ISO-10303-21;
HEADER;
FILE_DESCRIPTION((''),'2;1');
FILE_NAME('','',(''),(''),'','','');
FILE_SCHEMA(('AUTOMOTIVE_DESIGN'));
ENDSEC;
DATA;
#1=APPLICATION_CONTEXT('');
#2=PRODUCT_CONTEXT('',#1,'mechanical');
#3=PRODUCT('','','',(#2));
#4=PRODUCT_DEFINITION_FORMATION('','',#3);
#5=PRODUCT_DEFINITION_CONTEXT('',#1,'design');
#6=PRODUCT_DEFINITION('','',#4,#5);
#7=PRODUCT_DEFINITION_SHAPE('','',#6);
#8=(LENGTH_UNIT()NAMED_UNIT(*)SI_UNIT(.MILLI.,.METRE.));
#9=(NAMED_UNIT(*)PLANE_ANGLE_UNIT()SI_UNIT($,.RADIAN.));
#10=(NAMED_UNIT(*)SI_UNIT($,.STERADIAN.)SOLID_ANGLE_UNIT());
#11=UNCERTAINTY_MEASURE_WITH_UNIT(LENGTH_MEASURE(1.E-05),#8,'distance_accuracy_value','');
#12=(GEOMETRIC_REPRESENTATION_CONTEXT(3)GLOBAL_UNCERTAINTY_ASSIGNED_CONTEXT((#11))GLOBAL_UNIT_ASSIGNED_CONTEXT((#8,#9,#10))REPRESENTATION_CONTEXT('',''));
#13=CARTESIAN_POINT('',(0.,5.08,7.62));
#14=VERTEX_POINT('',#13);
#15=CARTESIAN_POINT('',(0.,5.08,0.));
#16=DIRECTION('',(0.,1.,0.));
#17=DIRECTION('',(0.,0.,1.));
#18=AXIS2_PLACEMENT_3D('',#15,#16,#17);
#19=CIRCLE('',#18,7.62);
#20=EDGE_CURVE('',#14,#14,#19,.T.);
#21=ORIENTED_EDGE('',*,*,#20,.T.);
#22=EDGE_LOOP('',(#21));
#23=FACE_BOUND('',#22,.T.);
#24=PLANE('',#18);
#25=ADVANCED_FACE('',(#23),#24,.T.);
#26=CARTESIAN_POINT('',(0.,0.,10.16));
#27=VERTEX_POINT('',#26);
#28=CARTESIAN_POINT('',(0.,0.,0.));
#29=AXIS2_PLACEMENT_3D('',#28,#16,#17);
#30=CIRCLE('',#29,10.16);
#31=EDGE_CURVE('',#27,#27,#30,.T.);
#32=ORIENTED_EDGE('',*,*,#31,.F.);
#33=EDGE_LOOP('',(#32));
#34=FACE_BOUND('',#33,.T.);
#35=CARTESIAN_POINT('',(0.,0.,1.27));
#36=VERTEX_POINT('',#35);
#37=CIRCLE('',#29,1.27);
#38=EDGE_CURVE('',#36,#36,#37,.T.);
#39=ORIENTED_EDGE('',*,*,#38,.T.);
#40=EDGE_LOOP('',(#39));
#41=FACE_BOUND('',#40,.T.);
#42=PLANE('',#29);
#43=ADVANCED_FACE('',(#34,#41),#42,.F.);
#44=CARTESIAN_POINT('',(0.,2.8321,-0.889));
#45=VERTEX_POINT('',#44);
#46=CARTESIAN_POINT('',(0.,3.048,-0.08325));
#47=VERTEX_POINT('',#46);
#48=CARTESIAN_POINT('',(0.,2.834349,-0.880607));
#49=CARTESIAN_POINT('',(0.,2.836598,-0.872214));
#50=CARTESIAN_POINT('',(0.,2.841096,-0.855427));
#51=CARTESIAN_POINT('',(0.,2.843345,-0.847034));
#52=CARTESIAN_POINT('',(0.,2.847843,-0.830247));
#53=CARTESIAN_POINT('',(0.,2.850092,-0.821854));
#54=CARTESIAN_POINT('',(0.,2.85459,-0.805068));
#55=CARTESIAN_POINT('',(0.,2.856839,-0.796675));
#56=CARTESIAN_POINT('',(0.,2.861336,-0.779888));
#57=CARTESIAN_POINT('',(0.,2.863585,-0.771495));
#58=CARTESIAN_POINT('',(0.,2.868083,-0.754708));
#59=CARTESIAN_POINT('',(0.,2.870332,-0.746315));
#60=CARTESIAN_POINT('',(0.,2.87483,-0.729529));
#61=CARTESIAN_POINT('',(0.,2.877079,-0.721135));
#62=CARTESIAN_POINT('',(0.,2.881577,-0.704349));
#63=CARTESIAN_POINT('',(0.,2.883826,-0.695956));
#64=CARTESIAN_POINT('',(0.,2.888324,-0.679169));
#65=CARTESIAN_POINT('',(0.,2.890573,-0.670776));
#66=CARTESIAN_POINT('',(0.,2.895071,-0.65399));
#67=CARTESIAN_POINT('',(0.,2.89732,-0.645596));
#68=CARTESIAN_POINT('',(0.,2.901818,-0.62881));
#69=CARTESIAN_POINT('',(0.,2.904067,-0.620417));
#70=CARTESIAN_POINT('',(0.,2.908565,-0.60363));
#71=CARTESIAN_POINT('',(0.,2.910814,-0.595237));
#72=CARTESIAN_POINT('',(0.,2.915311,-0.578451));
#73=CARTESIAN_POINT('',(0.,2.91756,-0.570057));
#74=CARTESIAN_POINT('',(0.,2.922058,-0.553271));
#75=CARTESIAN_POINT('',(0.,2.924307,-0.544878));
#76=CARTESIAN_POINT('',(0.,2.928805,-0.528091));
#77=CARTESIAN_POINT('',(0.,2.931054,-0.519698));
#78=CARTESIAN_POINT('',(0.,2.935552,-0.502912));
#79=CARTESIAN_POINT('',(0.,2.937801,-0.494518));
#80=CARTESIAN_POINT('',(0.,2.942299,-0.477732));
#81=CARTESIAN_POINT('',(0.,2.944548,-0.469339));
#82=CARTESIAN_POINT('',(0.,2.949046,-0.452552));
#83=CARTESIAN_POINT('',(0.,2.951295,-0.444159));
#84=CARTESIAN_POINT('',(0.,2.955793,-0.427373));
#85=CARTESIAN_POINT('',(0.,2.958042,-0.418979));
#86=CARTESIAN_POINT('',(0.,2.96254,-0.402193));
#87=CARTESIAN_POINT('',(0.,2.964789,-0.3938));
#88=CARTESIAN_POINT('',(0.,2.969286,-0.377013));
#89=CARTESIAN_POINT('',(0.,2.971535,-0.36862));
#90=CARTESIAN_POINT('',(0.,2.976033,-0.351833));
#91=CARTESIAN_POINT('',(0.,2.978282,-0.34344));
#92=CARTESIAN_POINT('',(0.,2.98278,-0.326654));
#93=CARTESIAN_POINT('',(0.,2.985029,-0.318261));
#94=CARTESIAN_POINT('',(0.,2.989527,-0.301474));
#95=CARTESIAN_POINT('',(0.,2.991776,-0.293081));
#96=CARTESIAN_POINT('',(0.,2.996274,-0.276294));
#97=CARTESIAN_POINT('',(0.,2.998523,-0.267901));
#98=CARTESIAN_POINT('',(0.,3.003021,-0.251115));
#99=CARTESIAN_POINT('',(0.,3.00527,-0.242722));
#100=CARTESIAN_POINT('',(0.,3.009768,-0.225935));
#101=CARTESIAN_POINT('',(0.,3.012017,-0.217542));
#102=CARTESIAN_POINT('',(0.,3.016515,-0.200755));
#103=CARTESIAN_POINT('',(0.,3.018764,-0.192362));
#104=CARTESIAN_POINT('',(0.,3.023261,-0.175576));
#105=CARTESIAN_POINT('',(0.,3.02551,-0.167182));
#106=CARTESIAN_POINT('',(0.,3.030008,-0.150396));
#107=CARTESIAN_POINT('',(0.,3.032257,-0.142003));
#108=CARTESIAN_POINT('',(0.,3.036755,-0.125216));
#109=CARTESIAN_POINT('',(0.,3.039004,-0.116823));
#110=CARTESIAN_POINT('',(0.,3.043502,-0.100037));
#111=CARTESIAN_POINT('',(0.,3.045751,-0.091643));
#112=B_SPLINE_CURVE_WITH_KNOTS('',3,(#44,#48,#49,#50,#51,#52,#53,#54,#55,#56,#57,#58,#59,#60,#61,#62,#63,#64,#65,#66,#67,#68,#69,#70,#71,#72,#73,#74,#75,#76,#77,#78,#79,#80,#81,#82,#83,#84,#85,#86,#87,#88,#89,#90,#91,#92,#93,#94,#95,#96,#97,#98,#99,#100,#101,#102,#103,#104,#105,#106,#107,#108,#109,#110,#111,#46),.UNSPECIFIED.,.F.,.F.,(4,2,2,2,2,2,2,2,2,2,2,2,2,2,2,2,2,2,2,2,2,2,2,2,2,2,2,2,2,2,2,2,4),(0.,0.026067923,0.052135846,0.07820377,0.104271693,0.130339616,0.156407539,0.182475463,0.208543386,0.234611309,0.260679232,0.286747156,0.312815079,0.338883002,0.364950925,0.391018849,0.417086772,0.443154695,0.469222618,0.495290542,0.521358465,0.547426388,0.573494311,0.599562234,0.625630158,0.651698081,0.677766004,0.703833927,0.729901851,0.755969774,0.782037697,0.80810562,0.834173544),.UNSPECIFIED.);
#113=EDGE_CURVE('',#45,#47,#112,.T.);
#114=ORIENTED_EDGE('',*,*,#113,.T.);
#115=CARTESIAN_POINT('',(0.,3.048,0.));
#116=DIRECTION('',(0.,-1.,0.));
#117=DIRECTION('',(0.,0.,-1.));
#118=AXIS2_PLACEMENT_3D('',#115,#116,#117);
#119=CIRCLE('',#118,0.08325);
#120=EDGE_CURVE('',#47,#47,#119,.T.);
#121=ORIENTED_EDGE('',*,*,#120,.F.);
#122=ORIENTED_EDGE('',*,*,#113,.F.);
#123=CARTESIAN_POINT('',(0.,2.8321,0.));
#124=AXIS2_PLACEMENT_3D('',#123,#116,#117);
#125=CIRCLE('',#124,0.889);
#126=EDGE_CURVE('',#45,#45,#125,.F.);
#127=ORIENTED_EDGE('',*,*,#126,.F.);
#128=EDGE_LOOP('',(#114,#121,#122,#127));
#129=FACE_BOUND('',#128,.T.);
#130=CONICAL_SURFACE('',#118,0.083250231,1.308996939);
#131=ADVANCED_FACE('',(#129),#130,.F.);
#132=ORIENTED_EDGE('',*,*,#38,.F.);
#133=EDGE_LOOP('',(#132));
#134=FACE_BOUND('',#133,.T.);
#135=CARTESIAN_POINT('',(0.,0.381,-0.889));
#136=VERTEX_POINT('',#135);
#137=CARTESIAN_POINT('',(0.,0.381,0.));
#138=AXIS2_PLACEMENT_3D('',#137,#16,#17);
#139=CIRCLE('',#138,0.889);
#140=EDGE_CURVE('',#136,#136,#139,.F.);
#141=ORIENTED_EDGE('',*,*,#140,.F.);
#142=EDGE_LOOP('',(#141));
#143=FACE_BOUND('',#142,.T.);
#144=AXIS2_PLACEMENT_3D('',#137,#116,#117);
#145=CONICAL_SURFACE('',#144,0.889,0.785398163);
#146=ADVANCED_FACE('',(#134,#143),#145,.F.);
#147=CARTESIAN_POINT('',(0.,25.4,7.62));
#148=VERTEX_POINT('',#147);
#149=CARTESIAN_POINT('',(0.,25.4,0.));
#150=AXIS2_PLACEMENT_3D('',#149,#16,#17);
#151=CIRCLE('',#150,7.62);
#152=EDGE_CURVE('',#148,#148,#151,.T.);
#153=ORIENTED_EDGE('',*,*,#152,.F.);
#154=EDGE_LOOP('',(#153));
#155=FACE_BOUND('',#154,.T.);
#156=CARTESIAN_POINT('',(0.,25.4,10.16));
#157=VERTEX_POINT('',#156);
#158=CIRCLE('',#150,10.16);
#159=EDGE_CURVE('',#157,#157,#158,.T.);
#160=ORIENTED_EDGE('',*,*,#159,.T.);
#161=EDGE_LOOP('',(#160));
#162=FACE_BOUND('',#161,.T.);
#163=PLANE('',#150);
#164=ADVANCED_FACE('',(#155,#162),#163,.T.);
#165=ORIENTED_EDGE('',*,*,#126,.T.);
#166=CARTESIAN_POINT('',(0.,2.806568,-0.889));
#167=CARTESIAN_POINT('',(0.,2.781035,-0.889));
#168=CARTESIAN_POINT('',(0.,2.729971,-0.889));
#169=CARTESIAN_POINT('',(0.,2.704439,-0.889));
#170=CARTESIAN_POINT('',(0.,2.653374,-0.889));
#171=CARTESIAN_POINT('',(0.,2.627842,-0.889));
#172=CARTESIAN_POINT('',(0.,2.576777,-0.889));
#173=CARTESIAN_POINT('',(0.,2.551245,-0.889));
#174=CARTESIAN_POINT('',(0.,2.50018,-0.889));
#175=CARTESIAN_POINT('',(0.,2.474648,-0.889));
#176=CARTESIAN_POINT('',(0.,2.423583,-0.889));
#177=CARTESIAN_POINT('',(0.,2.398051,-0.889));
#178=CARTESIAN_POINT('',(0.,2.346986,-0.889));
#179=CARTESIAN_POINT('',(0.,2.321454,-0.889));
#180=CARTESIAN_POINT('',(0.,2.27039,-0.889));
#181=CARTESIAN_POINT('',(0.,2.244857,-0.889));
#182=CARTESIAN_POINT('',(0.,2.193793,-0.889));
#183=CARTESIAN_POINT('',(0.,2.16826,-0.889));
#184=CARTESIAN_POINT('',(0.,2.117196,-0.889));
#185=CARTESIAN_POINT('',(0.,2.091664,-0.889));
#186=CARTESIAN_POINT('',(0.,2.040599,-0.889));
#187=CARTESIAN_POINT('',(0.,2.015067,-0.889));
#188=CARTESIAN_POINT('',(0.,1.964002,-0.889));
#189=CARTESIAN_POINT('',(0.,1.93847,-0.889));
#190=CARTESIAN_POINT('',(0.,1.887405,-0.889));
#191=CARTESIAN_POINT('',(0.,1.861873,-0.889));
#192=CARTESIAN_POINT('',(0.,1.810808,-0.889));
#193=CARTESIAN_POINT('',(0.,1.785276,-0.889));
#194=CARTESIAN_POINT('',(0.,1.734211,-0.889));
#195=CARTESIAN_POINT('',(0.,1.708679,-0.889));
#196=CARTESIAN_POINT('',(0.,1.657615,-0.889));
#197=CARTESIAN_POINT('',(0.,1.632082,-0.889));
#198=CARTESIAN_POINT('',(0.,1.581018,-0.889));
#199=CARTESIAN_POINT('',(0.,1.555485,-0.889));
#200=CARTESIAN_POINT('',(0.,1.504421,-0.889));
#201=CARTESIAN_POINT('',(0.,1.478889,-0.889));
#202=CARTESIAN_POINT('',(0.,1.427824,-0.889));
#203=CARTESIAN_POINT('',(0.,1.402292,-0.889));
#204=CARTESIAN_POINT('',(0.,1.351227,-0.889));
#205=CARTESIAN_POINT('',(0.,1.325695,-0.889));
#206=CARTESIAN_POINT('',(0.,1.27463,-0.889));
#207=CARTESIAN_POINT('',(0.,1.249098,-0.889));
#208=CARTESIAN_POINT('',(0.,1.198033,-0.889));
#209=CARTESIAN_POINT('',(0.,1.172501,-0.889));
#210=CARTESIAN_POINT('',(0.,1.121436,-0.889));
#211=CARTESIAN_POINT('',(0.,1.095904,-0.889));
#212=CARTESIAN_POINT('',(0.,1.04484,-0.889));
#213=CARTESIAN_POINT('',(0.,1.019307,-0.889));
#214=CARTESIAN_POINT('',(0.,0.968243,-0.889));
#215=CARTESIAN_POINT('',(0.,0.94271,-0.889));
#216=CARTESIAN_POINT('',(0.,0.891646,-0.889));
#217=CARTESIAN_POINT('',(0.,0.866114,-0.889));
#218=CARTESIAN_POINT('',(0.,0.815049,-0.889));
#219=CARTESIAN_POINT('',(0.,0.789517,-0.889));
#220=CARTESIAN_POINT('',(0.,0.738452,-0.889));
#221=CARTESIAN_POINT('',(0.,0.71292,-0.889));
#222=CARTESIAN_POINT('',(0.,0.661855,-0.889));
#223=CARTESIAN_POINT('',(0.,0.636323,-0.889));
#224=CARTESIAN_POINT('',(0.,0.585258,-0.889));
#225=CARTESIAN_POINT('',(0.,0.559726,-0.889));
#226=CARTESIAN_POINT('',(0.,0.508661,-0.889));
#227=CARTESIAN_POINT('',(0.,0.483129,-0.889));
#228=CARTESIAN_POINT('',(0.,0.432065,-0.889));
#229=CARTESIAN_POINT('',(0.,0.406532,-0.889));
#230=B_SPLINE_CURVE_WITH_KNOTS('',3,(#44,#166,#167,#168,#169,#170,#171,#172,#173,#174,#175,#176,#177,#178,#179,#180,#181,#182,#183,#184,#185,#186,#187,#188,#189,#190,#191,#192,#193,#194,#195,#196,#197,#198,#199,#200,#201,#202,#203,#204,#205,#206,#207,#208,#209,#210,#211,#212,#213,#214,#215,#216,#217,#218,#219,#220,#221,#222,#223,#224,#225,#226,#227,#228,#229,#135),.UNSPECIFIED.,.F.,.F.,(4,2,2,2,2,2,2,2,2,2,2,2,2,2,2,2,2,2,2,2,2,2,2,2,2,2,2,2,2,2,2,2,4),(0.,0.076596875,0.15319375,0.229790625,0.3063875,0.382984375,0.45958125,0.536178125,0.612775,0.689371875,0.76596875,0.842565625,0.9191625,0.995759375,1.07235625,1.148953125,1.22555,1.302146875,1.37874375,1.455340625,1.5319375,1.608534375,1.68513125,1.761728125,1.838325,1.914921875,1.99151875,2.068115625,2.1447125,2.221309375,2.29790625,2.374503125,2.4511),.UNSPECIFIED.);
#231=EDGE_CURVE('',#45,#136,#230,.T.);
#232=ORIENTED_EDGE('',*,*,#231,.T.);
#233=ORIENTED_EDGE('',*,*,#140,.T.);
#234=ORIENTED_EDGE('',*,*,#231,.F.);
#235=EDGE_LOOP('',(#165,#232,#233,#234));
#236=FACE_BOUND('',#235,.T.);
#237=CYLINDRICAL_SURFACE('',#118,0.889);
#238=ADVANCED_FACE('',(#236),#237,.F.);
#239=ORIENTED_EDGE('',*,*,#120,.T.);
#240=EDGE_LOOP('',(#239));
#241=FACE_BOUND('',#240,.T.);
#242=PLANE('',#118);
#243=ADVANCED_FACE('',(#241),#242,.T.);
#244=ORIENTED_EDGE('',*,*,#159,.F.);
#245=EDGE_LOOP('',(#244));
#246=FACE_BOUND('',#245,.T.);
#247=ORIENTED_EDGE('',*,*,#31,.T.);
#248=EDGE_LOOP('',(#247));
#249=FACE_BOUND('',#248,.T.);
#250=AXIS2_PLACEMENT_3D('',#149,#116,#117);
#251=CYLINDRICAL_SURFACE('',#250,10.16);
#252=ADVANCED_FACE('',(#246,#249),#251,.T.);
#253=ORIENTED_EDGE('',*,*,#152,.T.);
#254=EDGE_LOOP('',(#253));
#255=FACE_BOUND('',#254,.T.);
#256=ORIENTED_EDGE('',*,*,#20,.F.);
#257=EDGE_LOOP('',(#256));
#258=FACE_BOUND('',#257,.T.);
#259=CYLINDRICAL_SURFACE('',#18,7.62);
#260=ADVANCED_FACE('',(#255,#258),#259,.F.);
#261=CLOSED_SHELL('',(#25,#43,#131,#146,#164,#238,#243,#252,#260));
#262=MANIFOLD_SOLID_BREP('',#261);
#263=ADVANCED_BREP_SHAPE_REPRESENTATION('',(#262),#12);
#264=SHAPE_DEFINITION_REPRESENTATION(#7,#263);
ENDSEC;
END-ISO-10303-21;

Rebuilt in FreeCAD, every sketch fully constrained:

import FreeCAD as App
import Part
import Sketcher

V = App.Vector
Q = App.Units.Quantity


def edges_at(feature, points):
    """Names of the edges that pass closest to the given points."""
    edges = feature.Shape.Edges
    near = lambda p: min(range(len(edges)), key=lambda i: edges[i].distToShape(Part.Vertex(*p))[0])
    return sorted({f"Edge{near(p) + 1}" for p in points})

doc = App.newDocument("Part")
params = doc.addObject("Spreadsheet::Sheet", "Params")
for row, (alias, value) in enumerate([
    ("sketch1_diameter", "0.8 in"),
    ("pad1_length", "1 in"),
    ("sketch2_diameter", "0.6 in"),
    ("pocket1_length", "0.8 in"),
    ("sketch3_diameter", "0.07 in"),
    ("pocket2_length", "0.12 in"),
    ("chamfer_size", "0.015 in"),
    ("chamfer2_size", "0.0085 in"),
    ("chamfer2_size2", "0.80575 mm"),
], start=1):
    params.set(f"A{row}", alias)
    params.set(f"B{row}", "=" + value)
    params.setAlias(f"B{row}", alias)

body = doc.addObject("PartDesign::Body", "Body")

sketch1 = body.newObject("Sketcher::SketchObject", "Sketch")
sketch1.AttachmentSupport = (doc.getObject("XZ_Plane"), [""])
sketch1.MapMode = "FlatFace"
sketch1.addGeometry(Part.Circle(V(0, 0, 0), V(0, 0, 1), 10), False)
sketch1.addConstraint(Sketcher.Constraint("Coincident", 0, 3, -1, 1))
sketch1.addConstraint(Sketcher.Constraint("Diameter", 0, Q("0.8 in")))
sketch1.setExpression("Constraints[1]", "Params.sketch1_diameter")
pad1 = body.newObject("PartDesign::Pad", "Pad")
pad1.Profile = sketch1
pad1.setExpression("Length", "Params.pad1_length")
pad1.Reversed = True

sketch2 = body.newObject("Sketcher::SketchObject", "Sketch001")
sketch2.AttachmentSupport = (doc.getObject("XZ_Plane"), [""])
sketch2.MapMode = "FlatFace"
sketch2.AttachmentOffset = App.Placement(V(0, 0, -1 * 25.4), App.Rotation())
sketch2.addGeometry(Part.Circle(V(0, 0, 0), V(0, 0, 1), 8), False)
sketch2.addConstraint(Sketcher.Constraint("Coincident", 0, 3, -1, 1))
sketch2.addConstraint(Sketcher.Constraint("Diameter", 0, Q("0.6 in")))
sketch2.setExpression("Constraints[1]", "Params.sketch2_diameter")
pocket1 = body.newObject("PartDesign::Pocket", "Pocket")
pocket1.Profile = sketch2
pocket1.setExpression("Length", "Params.pocket1_length")
pocket1.Reversed = True

sketch3 = body.newObject("Sketcher::SketchObject", "Sketch002")
sketch3.AttachmentSupport = (doc.getObject("XZ_Plane"), [""])
sketch3.MapMode = "FlatFace"
sketch3.addGeometry(Part.Circle(V(0, 0, 0), V(0, 0, 1), 0.9), False)
sketch3.addConstraint(Sketcher.Constraint("Coincident", 0, 3, -1, 1))
sketch3.addConstraint(Sketcher.Constraint("Diameter", 0, Q("0.07 in")))
sketch3.setExpression("Constraints[1]", "Params.sketch3_diameter")
pocket2 = body.newObject("PartDesign::Pocket", "Pocket001")
pocket2.Profile = sketch3
pocket2.setExpression("Length", "Params.pocket2_length")
doc.recompute()

chamfer = body.newObject("PartDesign::Chamfer", "Chamfer")
chamfer.Base = (pocket2, edges_at(pocket2, [(0, 0, 0.889)]))
chamfer.setExpression("Size", "Params.chamfer_size")
doc.recompute()

chamfer2 = body.newObject("PartDesign::Chamfer", "Chamfer001")
chamfer2.Base = (chamfer, edges_at(chamfer, [(0, 3.048, 0.889)]))
chamfer2.ChamferType = "Two distances"
chamfer2.setExpression("Size", "Params.chamfer2_size")
chamfer2.setExpression("Size2", "Params.chamfer2_size2")

doc.recompute()
